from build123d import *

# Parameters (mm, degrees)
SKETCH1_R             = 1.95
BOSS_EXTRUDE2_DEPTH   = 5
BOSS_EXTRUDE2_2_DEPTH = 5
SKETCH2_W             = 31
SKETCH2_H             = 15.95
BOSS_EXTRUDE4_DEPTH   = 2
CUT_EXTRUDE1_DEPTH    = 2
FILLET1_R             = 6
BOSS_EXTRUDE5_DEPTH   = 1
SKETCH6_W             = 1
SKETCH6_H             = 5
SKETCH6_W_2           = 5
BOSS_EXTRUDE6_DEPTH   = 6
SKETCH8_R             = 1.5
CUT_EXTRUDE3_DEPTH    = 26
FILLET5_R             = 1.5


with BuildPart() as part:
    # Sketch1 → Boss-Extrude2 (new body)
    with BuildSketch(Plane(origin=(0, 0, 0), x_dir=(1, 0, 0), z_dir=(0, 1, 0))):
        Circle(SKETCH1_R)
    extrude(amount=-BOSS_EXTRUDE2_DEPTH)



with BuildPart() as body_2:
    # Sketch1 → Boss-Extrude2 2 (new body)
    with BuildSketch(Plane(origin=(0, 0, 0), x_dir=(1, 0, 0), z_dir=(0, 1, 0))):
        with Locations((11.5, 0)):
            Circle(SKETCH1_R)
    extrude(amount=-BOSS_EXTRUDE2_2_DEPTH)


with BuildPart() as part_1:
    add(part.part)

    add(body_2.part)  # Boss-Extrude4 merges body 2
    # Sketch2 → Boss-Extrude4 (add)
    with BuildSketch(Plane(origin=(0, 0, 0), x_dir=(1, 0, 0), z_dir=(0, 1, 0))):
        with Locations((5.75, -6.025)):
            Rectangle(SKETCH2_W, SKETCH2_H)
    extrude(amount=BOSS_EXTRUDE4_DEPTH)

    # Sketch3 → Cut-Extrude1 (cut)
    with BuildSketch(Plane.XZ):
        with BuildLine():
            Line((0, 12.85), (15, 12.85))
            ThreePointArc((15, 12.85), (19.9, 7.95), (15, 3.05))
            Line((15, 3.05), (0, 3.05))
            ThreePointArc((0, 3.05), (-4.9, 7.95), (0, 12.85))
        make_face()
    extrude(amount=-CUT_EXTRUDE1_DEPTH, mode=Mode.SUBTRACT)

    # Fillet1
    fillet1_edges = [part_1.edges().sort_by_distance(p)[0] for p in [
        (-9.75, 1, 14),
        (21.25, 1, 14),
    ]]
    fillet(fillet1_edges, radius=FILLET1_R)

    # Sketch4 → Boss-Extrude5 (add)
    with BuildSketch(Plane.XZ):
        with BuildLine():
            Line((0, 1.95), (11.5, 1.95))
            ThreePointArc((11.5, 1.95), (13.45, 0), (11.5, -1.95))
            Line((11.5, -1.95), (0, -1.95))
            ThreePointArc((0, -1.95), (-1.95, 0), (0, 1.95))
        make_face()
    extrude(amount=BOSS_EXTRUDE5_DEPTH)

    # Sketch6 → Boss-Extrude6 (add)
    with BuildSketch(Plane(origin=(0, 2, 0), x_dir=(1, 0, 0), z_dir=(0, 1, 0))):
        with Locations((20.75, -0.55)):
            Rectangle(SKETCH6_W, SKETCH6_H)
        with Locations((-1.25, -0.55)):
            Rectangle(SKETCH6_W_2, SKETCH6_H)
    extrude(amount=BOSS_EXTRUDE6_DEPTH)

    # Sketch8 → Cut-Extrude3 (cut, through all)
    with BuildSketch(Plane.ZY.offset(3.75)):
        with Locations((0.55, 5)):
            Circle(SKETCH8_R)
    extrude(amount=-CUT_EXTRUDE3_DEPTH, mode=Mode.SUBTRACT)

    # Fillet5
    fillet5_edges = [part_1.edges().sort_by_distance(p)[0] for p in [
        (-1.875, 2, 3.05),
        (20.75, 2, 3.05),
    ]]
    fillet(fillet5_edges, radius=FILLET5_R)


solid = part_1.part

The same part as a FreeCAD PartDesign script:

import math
import FreeCAD as App
import Part
import Sketcher


def edges_at(feature, points):
    """Names of the edges that pass closest to the given points."""
    edges = feature.Shape.Edges
    near = lambda p: min(range(len(edges)), key=lambda i: edges[i].distToShape(Part.Vertex(*p))[0])
    return sorted({f"Edge{near(p) + 1}" for p in points})

doc = App.newDocument("Part")
body = doc.addObject("PartDesign::Body", "Body")

# Sketch on XZ plane
sketch1 = body.newObject("Sketcher::SketchObject", "Sketch")
sketch1.AttachmentSupport = (doc.getObject("XZ_Plane"), [""])
sketch1.MapMode = "FlatFace"
sketch1.addGeometry(Part.Circle(App.Vector(0, 0, 0), App.Vector(0, 0, 1), 1.9), False)
sketch1.addConstraint(Sketcher.Constraint("Coincident", 0, 3, -1, 1))
sketch1.addConstraint(Sketcher.Constraint("Diameter", 0, 3.9))
pad1 = body.newObject("PartDesign::Pad", "Pad")
pad1.Profile = sketch1
pad1.Length = 5
body2 = doc.addObject("PartDesign::Body", "Body001")

# Sketch on XZ plane
sketch2 = body2.newObject("Sketcher::SketchObject", "Sketch001")
sketch2.AttachmentSupport = (doc.getObject("XZ_Plane001"), [""])
sketch2.MapMode = "FlatFace"
sketch2.addGeometry(Part.Circle(App.Vector(11.5, 0, 0), App.Vector(0, 0, 1), 1.9), False)
sketch2.addConstraint(Sketcher.Constraint("PointOnObject", 0, 3, -1))
sketch2.addConstraint(Sketcher.Constraint("Diameter", 0, 3.9))
sketch2.addConstraint(Sketcher.Constraint("DistanceX", -1, 1, 0, 3, 11.5))
pad2 = body2.newObject("PartDesign::Pad", "Pad001")
pad2.Profile = sketch2
pad2.Length = 5
body.AllowCompound = True
doc.recompute()

boolean = body.newObject("PartDesign::Boolean", "Boolean")
boolean.Type = "Fuse"
boolean.addObjects([body2])

# Sketch on XZ plane
sketch3 = body.newObject("Sketcher::SketchObject", "Sketch002")
sketch3.AttachmentSupport = (doc.getObject("XZ_Plane"), [""])
sketch3.MapMode = "FlatFace"
sketch3.addGeometry(Part.LineSegment(App.Vector(-10, -2, 0), App.Vector(-10, 14, 0)), False)
sketch3.addGeometry(Part.LineSegment(App.Vector(-10, 14, 0), App.Vector(21, 14, 0)), False)
sketch3.addGeometry(Part.LineSegment(App.Vector(21, 14, 0), App.Vector(21, -2, 0)), False)
sketch3.addGeometry(Part.LineSegment(App.Vector(21, -2, 0), App.Vector(-10, -2, 0)), False)
sketch3.addConstraint(Sketcher.Constraint("Coincident", 0, 2, 1, 1))
sketch3.addConstraint(Sketcher.Constraint("Coincident", 1, 2, 2, 1))
sketch3.addConstraint(Sketcher.Constraint("Coincident", 2, 2, 3, 1))
sketch3.addConstraint(Sketcher.Constraint("Coincident", 3, 2, 0, 1))
sketch3.addConstraint(Sketcher.Constraint("Vertical", 0))
sketch3.addConstraint(Sketcher.Constraint("Horizontal", 1))
sketch3.addConstraint(Sketcher.Constraint("Vertical", 2))
sketch3.addConstraint(Sketcher.Constraint("Horizontal", 3))
sketch3.addConstraint(Sketcher.Constraint("DistanceX", 1, 1, 1, 2, 31.0))
sketch3.addConstraint(Sketcher.Constraint("DistanceY", -1, 1, 0, 2, 14.0))
sketch3.addConstraint(Sketcher.Constraint("DistanceY", 0, 1, 0, 2, 15.95))
sketch3.addConstraint(Sketcher.Constraint("DistanceX", 0, 2, -1, 1, 9.75))
pad3 = body.newObject("PartDesign::Pad", "Pad002")
pad3.Profile = sketch3
pad3.Length = 2
pad3.Reversed = True

# Sketch on XZ plane
sketch4 = body.newObject("Sketcher::SketchObject", "Sketch003")
sketch4.AttachmentSupport = (doc.getObject("XZ_Plane"), [""])
sketch4.MapMode = "FlatFace"
sketch4.addGeometry(Part.LineSegment(App.Vector(15, 12.8, 0), App.Vector(0, 12.8, 0)), False)
sketch4.addGeometry(Part.ArcOfCircle(Part.Circle(App.Vector(0, 8, 0), App.Vector(0, 0, 1), 4.9), math.radians(90), math.radians(270)), False)
sketch4.addGeometry(Part.LineSegment(App.Vector(0, 3, 0), App.Vector(15, 3, 0)), False)
sketch4.addGeometry(Part.ArcOfCircle(Part.Circle(App.Vector(15, 8, 0), App.Vector(0, 0, 1), 4.9), math.radians(-90), math.radians(90)), False)
sketch4.addConstraint(Sketcher.Constraint("Tangent", 0, 2, 1, 1))
sketch4.addConstraint(Sketcher.Constraint("Tangent", 1, 2, 2, 1))
sketch4.addConstraint(Sketcher.Constraint("Tangent", 2, 2, 3, 1))
sketch4.addConstraint(Sketcher.Constraint("Tangent", 3, 2, 0, 1))
sketch4.addConstraint(Sketcher.Constraint("Horizontal", 0))
sketch4.addConstraint(Sketcher.Constraint("Horizontal", 2))
sketch4.addConstraint(Sketcher.Constraint("PointOnObject", 1, 3, -2))
sketch4.addConstraint(Sketcher.Constraint("Radius", 1, 4.9))
sketch4.addConstraint(Sketcher.Constraint("DistanceX", 0, 2, 0, 1, 15.0))
sketch4.addConstraint(Sketcher.Constraint("DistanceY", -1, 1, 1, 3, 7.95))
pocket1 = body.newObject("PartDesign::Pocket", "Pocket")
pocket1.Profile = sketch4
pocket1.Length = 2
doc.recompute()

fillet = body.newObject("PartDesign::Fillet", "Fillet")
fillet.Base = (pocket1, edges_at(pocket1, [(-9.75, 1, 14), (21.25, 1, 14)]))
fillet.Radius = 6

# Sketch on XZ plane
sketch5 = body.newObject("Sketcher::SketchObject", "Sketch004")
sketch5.AttachmentSupport = (doc.getObject("XZ_Plane"), [""])
sketch5.MapMode = "FlatFace"
sketch5.addGeometry(Part.LineSegment(App.Vector(11.5, 1.9, 0), App.Vector(0, 1.9, 0)), False)
sketch5.addGeometry(Part.ArcOfCircle(Part.Circle(App.Vector(0, 0, 0), App.Vector(0, 0, 1), 1.9), math.radians(90), math.radians(270)), False)
sketch5.addGeometry(Part.LineSegment(App.Vector(0, -1.9, 0), App.Vector(11.5, -1.9, 0)), False)
sketch5.addGeometry(Part.ArcOfCircle(Part.Circle(App.Vector(11.5, 0, 0), App.Vector(0, 0, 1), 1.9), math.radians(-90), math.radians(90)), False)
sketch5.addConstraint(Sketcher.Constraint("Tangent", 0, 2, 1, 1))
sketch5.addConstraint(Sketcher.Constraint("Tangent", 1, 2, 2, 1))
sketch5.addConstraint(Sketcher.Constraint("Tangent", 2, 2, 3, 1))
sketch5.addConstraint(Sketcher.Constraint("Tangent", 3, 2, 0, 1))
sketch5.addConstraint(Sketcher.Constraint("Horizontal", 0))
sketch5.addConstraint(Sketcher.Constraint("Horizontal", 2))
sketch5.addConstraint(Sketcher.Constraint("Coincident", 1, 3, -1, 1))
sketch5.addConstraint(Sketcher.Constraint("Radius", 1, 1.95))
sketch5.addConstraint(Sketcher.Constraint("DistanceX", 0, 2, 0, 1, 11.5))
pad4 = body.newObject("PartDesign::Pad", "Pad003")
pad4.Profile = sketch5
pad4.Length = 1

# Sketch on XZ plane
sketch6 = body.newObject("Sketcher::SketchObject", "Sketch005")
sketch6.AttachmentSupport = (doc.getObject("XZ_Plane"), [""])
sketch6.MapMode = "FlatFace"
sketch6.AttachmentOffset = App.Placement(App.Vector(0, 0, -2), App.Rotation())
sketch6.addGeometry(Part.LineSegment(App.Vector(20.2, -1.9, 0), App.Vector(20.2, 3, 0)), False)
sketch6.addGeometry(Part.LineSegment(App.Vector(20.2, 3, 0), App.Vector(21.2, 3, 0)), False)
sketch6.addGeometry(Part.LineSegment(App.Vector(21.2, 3, 0), App.Vector(21.2, -1.9, 0)), False)
sketch6.addGeometry(Part.LineSegment(App.Vector(21.2, -1.9, 0), App.Vector(20.2, -1.9, 0)), False)
sketch6.addGeometry(Part.LineSegment(App.Vector(-3.8, -1.9, 0), App.Vector(-3.8, 3, 0)), False)
sketch6.addGeometry(Part.LineSegment(App.Vector(-3.8, 3, 0), App.Vector(1.2, 3, 0)), False)
sketch6.addGeometry(Part.LineSegment(App.Vector(1.2, 3, 0), App.Vector(1.2, -1.9, 0)), False)
sketch6.addGeometry(Part.LineSegment(App.Vector(1.2, -1.9, 0), App.Vector(-3.8, -1.9, 0)), False)
sketch6.addConstraint(Sketcher.Constraint("Coincident", 0, 2, 1, 1))
sketch6.addConstraint(Sketcher.Constraint("Coincident", 1, 2, 2, 1))
sketch6.addConstraint(Sketcher.Constraint("Coincident", 2, 2, 3, 1))
sketch6.addConstraint(Sketcher.Constraint("Coincident", 3, 2, 0, 1))
sketch6.addConstraint(Sketcher.Constraint("Coincident", 4, 2, 5, 1))
sketch6.addConstraint(Sketcher.Constraint("Coincident", 5, 2, 6, 1))
sketch6.addConstraint(Sketcher.Constraint("Coincident", 6, 2, 7, 1))
sketch6.addConstraint(Sketcher.Constraint("Coincident", 7, 2, 4, 1))
sketch6.addConstraint(Sketcher.Constraint("Vertical", 0))
sketch6.addConstraint(Sketcher.Constraint("Horizontal", 1))
sketch6.addConstraint(Sketcher.Constraint("Vertical", 2))
sketch6.addConstraint(Sketcher.Constraint("Horizontal", 3))
sketch6.addConstraint(Sketcher.Constraint("Vertical", 4))
sketch6.addConstraint(Sketcher.Constraint("Horizontal", 5))
sketch6.addConstraint(Sketcher.Constraint("Vertical", 6))
sketch6.addConstraint(Sketcher.Constraint("Horizontal", 7))
sketch6.addConstraint(Sketcher.Constraint("Horizontal", 1, 2, 4, 2))
sketch6.addConstraint(Sketcher.Constraint("Horizontal", 3, 2, 6, 2))
sketch6.addConstraint(Sketcher.Constraint("Equal", 7, 0))
sketch6.addConstraint(Sketcher.Constraint("DistanceX", 1, 1, 1, 2, 1.0))
sketch6.addConstraint(Sketcher.Constraint("DistanceX", 5, 1, 5, 2, 5.0))
sketch6.addConstraint(Sketcher.Constraint("DistanceX", 4, 2, 0, 2, 24.0))
sketch6.addConstraint(Sketcher.Constraint("DistanceX", -1, 1, 0, 2, 20.25))
sketch6.addConstraint(Sketcher.Constraint("DistanceY", -1, 1, 0, 2, 3.05))
pad5 = body.newObject("PartDesign::Pad", "Pad004")
pad5.Profile = sketch6
pad5.Length = 6
pad5.Reversed = True

# Sketch on YZ plane
sketch7 = body.newObject("Sketcher::SketchObject", "Sketch006")
sketch7.AttachmentSupport = (doc.getObject("YZ_Plane"), [""])
sketch7.MapMode = "FlatFace"
sketch7.AttachmentOffset = App.Placement(App.Vector(0, 0, -3.75), App.Rotation())
sketch7.addGeometry(Part.Circle(App.Vector(5, 0.6, 0), App.Vector(0, 0, 1), 1.5), False)
sketch7.addConstraint(Sketcher.Constraint("Diameter", 0, 3.0))
sketch7.addConstraint(Sketcher.Constraint("DistanceX", -1, 1, 0, 3, 5.0))
sketch7.addConstraint(Sketcher.Constraint("DistanceY", -1, 1, 0, 3, 0.55))
pocket2 = body.newObject("PartDesign::Pocket", "Pocket001")
pocket2.Profile = sketch7
pocket2.Type = "ThroughAll"
pocket2.Reversed = True
doc.recompute()

fillet2 = body.newObject("PartDesign::Fillet", "Fillet001")
fillet2.Base = (pocket2, edges_at(pocket2, [(-1.875, 2, 3.05), (20.75, 2, 3.05)]))
fillet2.Radius = 1.5

doc.recompute()
